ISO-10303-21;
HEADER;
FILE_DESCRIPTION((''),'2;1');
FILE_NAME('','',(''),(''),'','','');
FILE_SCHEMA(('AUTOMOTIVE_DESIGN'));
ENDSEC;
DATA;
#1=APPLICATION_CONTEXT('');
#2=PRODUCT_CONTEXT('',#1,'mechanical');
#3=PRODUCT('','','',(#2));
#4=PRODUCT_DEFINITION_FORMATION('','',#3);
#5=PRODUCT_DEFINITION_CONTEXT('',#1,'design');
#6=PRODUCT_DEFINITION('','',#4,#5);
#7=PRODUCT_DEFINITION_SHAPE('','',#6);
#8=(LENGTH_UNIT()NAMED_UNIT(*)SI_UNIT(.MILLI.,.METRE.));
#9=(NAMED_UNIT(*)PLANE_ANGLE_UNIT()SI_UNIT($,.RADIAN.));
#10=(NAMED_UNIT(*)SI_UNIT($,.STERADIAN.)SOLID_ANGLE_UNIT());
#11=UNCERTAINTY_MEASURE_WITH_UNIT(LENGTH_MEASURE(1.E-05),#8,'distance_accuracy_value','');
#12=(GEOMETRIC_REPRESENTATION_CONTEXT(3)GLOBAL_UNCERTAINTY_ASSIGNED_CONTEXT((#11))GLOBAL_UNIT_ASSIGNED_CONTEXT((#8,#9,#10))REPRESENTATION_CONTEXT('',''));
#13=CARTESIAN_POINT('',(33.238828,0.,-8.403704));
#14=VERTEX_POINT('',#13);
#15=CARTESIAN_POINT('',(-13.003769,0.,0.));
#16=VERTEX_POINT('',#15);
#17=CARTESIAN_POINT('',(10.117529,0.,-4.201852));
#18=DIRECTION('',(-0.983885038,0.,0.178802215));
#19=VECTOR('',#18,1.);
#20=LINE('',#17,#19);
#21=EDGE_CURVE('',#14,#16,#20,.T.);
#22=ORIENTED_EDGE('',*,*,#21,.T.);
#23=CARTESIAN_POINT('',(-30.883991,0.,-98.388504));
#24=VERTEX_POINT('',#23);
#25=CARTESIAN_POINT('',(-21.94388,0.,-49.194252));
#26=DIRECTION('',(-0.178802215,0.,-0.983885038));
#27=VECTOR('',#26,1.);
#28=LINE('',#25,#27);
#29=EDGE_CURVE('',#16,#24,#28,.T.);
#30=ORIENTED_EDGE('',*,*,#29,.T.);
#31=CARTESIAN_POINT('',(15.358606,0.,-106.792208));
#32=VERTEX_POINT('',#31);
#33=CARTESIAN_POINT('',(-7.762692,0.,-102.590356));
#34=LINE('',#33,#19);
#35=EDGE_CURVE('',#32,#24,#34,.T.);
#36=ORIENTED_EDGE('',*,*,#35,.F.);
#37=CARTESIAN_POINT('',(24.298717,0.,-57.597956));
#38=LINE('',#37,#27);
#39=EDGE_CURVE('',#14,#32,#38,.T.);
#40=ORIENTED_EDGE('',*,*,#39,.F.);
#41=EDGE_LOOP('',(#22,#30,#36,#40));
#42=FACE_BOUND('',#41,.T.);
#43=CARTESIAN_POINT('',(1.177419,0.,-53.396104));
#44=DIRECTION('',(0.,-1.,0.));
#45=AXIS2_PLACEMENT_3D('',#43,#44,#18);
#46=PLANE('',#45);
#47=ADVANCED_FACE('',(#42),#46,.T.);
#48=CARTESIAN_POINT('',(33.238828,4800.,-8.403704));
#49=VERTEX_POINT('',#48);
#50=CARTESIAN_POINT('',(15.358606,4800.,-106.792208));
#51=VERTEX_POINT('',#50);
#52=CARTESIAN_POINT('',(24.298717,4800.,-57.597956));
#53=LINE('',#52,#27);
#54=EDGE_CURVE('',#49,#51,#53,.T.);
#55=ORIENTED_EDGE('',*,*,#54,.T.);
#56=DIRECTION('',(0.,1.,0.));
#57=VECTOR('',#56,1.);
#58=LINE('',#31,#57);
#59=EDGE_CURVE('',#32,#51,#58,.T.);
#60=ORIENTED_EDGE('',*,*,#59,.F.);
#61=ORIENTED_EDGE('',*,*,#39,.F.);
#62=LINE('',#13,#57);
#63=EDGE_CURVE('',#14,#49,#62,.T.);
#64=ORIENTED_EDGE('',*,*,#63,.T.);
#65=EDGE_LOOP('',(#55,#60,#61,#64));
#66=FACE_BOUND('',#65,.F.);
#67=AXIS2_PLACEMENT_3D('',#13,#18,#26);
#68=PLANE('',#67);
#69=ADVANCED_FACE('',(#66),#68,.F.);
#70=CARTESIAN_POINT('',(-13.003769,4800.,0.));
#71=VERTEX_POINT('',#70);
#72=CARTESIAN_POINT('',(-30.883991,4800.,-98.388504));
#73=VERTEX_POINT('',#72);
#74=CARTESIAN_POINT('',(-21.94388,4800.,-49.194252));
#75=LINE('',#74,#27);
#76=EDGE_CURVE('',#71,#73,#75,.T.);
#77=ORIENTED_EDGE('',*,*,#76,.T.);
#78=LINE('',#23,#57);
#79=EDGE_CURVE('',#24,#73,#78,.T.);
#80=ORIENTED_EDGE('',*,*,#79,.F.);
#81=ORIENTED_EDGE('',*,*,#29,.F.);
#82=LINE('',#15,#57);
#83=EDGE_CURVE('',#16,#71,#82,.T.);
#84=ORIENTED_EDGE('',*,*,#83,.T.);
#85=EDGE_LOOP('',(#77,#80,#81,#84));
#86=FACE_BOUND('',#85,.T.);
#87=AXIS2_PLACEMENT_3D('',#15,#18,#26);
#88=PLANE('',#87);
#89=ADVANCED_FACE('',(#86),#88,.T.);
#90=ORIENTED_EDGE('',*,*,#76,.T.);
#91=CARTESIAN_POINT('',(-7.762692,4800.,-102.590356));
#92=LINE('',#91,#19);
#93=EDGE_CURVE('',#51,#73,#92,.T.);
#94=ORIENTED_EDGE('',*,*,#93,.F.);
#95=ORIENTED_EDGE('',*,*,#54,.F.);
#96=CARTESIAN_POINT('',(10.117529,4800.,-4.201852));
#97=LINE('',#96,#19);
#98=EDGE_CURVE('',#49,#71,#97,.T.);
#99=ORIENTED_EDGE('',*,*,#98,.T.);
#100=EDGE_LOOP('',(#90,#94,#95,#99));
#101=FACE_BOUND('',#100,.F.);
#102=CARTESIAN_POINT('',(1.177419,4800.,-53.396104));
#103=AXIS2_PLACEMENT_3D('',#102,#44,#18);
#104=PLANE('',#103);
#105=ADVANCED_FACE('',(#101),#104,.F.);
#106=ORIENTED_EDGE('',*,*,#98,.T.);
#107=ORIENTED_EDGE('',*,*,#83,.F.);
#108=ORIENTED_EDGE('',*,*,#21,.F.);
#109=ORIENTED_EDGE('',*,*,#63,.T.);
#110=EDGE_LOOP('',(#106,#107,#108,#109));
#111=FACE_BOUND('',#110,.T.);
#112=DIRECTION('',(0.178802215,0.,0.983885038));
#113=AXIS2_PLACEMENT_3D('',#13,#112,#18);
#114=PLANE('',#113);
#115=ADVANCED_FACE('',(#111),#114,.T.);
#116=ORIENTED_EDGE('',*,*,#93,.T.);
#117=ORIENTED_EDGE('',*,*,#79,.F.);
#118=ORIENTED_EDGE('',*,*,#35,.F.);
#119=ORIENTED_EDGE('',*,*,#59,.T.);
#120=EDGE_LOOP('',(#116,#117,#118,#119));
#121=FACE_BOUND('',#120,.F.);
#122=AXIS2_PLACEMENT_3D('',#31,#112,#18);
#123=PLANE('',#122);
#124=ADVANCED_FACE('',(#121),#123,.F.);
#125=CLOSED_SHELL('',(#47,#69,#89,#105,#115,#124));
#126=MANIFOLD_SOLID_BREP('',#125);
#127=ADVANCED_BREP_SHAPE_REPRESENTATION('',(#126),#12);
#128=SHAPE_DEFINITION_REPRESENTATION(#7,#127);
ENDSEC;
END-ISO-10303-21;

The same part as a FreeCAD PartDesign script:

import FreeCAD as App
import Part
import Sketcher
Q = App.Units.Quantity


def add_polygon(sketch, points):
    """Adds a closed chain of lines whose ends are joined by coincident constraints."""
    first, n = sketch.GeometryCount, len(points)
    for a, b in zip(points, points[1:] + points[:1]):
        sketch.addGeometry(Part.LineSegment(App.Vector(*a, 0), App.Vector(*b, 0)), False)
    for i in range(n):
        sketch.addConstraint(Sketcher.Constraint("Coincident", first + i, 2, first + (i + 1) % n, 1))

doc = App.newDocument("Part")
params = doc.addObject("Spreadsheet::Sheet", "Params")
for row, (alias, value) in enumerate([
    ("sketch1_width", "47 mm"),
    ("sketch1_height", "100 mm"),
    ("pad1_length", "4800 mm"),
], start=1):
    params.set(f"A{row}", alias)
    params.set(f"B{row}", "=" + value)
    params.setAlias(f"B{row}", alias)

body = doc.addObject("PartDesign::Body", "Body")

# Sketch on XZ plane
sketch1 = doc.addObject("Sketcher::SketchObject", "Sketch")
body.addObject(sketch1)
sketch1.AttachmentSupport = (doc.XZ_Plane, [""])
sketch1.MapMode = "FlatFace"
add_polygon(sketch1, [(-60, 100), (-60, 0), (-13, 0), (-13, 100)])  # lines 0-3
sketch1.addConstraint(Sketcher.Constraint("Vertical", 0))
sketch1.addConstraint(Sketcher.Constraint("Horizontal", 1))
sketch1.addConstraint(Sketcher.Constraint("Vertical", 2))
sketch1.addConstraint(Sketcher.Constraint("Horizontal", 3))
sketch1.addConstraint(Sketcher.Constraint("PointOnObject", 0, 2, -1))
sketch1.addConstraint(Sketcher.Constraint("DistanceX", 1, 1, 1, 2, Q("47 mm")))
sketch1.addConstraint(Sketcher.Constraint("DistanceY", 0, 2, 0, 1, Q("100 mm")))
sketch1.addConstraint(Sketcher.Constraint("DistanceX", 0, 2, -1, 1, Q("60.003769 mm")))
sketch1.setExpression("Constraints[9]", "Params.sketch1_width")
sketch1.setExpression("Constraints[10]", "Params.sketch1_height")
pad1 = doc.addObject("PartDesign::Pad", "Pad")
body.addObject(pad1)
pad1.Profile = sketch1
pad1.setExpression("Length", "Params.pad1_length")
pad1.Reversed = True
body2 = doc.addObject("PartDesign::Body", "Body001")
doc.recompute()

body.Placement = App.Placement(App.Vector(-25.797983, 0, 2.325103), App.Rotation(App.Vector(0, -1, 0), 169.7))
boolean = doc.addObject("PartDesign::Boolean", "Boolean")
body2.addObject(boolean)
boolean.Type = "Fuse"
boolean.addObjects([body])

doc.recompute()
